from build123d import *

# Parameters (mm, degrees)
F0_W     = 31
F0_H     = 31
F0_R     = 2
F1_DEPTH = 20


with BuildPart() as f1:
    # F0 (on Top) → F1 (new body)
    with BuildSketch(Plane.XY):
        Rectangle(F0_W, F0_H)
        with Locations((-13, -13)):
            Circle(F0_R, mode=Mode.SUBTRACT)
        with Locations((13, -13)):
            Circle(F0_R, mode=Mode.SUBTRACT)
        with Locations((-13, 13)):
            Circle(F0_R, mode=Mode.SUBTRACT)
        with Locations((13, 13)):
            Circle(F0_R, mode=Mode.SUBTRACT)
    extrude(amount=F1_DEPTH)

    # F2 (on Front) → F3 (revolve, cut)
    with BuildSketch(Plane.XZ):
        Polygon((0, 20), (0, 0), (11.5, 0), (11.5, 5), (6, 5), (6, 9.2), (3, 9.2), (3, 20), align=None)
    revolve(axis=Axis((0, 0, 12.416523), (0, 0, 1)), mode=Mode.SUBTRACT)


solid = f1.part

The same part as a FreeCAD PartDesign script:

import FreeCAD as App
import Part
import Sketcher
Q = App.Units.Quantity


def add_polygon(sketch, points):
    """Adds a closed chain of lines whose ends are joined by coincident constraints."""
    first, n = sketch.GeometryCount, len(points)
    for a, b in zip(points, points[1:] + points[:1]):
        sketch.addGeometry(Part.LineSegment(App.Vector(*a, 0), App.Vector(*b, 0)), False)
    for i in range(n):
        sketch.addConstraint(Sketcher.Constraint("Coincident", first + i, 2, first + (i + 1) % n, 1))

doc = App.newDocument("Part")
params = doc.addObject("Spreadsheet::Sheet", "Params")
for row, (alias, value) in enumerate([
    ("sketch1_diameter", "4 mm"),
    ("sketch1_width", "31 mm"),
    ("pad1_length", "20 mm"),
    ("sketch2_width", "3 mm"),
    ("sketch2_height", "20 mm"),
    ("sketch2_height2", "5 mm"),
    ("sketch2_width2", "11.5 mm"),
    ("sketch2_height3", "4.2 mm"),
    ("groove_angle", "360 deg"),
], start=1):
    params.set(f"A{row}", alias)
    params.set(f"B{row}", "=" + value)
    params.setAlias(f"B{row}", alias)

body = doc.addObject("PartDesign::Body", "Body")

# Sketch on XY plane
sketch1 = body.newObject("Sketcher::SketchObject", "Sketch")
sketch1.AttachmentSupport = (doc.getObject("XY_Plane"), [""])
sketch1.MapMode = "FlatFace"
add_polygon(sketch1, [(-15.5, 15.5), (-15.5, -15.5), (15.5, -15.5), (15.5, 15.5)])  # lines 0-3
sketch1.addGeometry(Part.Circle(App.Vector(-13, -13, 0), App.Vector(0, 0, 1), 2), False)  # 4
sketch1.addGeometry(Part.Circle(App.Vector(13, -13, 0), App.Vector(0, 0, 1), 2), False)  # 5
sketch1.addGeometry(Part.Circle(App.Vector(-13, 13, 0), App.Vector(0, 0, 1), 2), False)  # 6
sketch1.addGeometry(Part.Circle(App.Vector(13, 13, 0), App.Vector(0, 0, 1), 2), False)  # 7
sketch1.addConstraint([
    Sketcher.Constraint("Vertical", 0),
    Sketcher.Constraint("Horizontal", 1),
    Sketcher.Constraint("Vertical", 2),
    Sketcher.Constraint("Horizontal", 3),
    Sketcher.Constraint("Equal", 4, 5),
    Sketcher.Constraint("Equal", 5, 6),
    Sketcher.Constraint("Equal", 6, 7),
    Sketcher.Constraint("Symmetric", 5, 3, 6, 3, -1, 1),
    Sketcher.Constraint("Symmetric", 4, 3, 7, 3, -1, 1),
    Sketcher.Constraint("Symmetric", 0, 2, 2, 2, -1, 1),
    Sketcher.Constraint("Symmetric", 4, 3, 5, 3, -2),
    Sketcher.Constraint("Equal", 3, 0),
    Sketcher.Constraint("Diameter", 4, Q("4 mm")),
    Sketcher.Constraint("DistanceX", 1, 1, 1, 2, Q("31 mm")),
    Sketcher.Constraint("DistanceX", 4, 3, -1, 1, Q("13 mm")),
    Sketcher.Constraint("DistanceY", 4, 3, -1, 1, Q("13 mm")),
])
sketch1.setExpression("Constraints[16]", "Params.sketch1_diameter")
sketch1.setExpression("Constraints[17]", "Params.sketch1_width")
pad1 = body.newObject("PartDesign::Pad", "Pad")
pad1.Profile = sketch1
pad1.setExpression("Length", "Params.pad1_length")

# Sketch on XZ plane
sketch2 = body.newObject("Sketcher::SketchObject", "Sketch001")
sketch2.AttachmentSupport = (doc.getObject("XZ_Plane"), [""])
sketch2.MapMode = "FlatFace"
add_polygon(sketch2, [(0, 20), (0, 0), (11.5, 0), (11.5, 5), (6, 5), (6, 9.2), (3, 9.2), (3, 20)])  # lines 0-7
sketch2.addConstraint([
    Sketcher.Constraint("Vertical", 0),
    Sketcher.Constraint("Horizontal", 1),
    Sketcher.Constraint("Vertical", 2),
    Sketcher.Constraint("Horizontal", 3),
    Sketcher.Constraint("Vertical", 4),
    Sketcher.Constraint("Horizontal", 5),
    Sketcher.Constraint("Vertical", 6),
    Sketcher.Constraint("Horizontal", 7),
    Sketcher.Constraint("Coincident", 0, 2, -1, 1),
    Sketcher.Constraint("Equal", 5, 7),
    Sketcher.Constraint("DistanceX", 5, 2, 5, 1, Q("3 mm")),
    Sketcher.Constraint("DistanceY", 0, 2, 0, 1, Q("20 mm")),
    Sketcher.Constraint("DistanceY", 2, 1, 2, 2, Q("5 mm")),
    Sketcher.Constraint("DistanceX", 1, 1, 1, 2, Q("11.5 mm")),
    Sketcher.Constraint("DistanceY", 4, 1, 4, 2, Q("4.2 mm")),
])
sketch2.setExpression("Constraints[18]", "Params.sketch2_width")
sketch2.setExpression("Constraints[19]", "Params.sketch2_height")
sketch2.setExpression("Constraints[20]", "Params.sketch2_height2")
sketch2.setExpression("Constraints[21]", "Params.sketch2_width2")
sketch2.setExpression("Constraints[22]", "Params.sketch2_height3")
groove = body.newObject("PartDesign::Groove", "Groove")
groove.Profile = sketch2
groove.ReferenceAxis = (sketch2, ["V_Axis"])
groove.setExpression("Angle", "Params.groove_angle")

doc.recompute()
